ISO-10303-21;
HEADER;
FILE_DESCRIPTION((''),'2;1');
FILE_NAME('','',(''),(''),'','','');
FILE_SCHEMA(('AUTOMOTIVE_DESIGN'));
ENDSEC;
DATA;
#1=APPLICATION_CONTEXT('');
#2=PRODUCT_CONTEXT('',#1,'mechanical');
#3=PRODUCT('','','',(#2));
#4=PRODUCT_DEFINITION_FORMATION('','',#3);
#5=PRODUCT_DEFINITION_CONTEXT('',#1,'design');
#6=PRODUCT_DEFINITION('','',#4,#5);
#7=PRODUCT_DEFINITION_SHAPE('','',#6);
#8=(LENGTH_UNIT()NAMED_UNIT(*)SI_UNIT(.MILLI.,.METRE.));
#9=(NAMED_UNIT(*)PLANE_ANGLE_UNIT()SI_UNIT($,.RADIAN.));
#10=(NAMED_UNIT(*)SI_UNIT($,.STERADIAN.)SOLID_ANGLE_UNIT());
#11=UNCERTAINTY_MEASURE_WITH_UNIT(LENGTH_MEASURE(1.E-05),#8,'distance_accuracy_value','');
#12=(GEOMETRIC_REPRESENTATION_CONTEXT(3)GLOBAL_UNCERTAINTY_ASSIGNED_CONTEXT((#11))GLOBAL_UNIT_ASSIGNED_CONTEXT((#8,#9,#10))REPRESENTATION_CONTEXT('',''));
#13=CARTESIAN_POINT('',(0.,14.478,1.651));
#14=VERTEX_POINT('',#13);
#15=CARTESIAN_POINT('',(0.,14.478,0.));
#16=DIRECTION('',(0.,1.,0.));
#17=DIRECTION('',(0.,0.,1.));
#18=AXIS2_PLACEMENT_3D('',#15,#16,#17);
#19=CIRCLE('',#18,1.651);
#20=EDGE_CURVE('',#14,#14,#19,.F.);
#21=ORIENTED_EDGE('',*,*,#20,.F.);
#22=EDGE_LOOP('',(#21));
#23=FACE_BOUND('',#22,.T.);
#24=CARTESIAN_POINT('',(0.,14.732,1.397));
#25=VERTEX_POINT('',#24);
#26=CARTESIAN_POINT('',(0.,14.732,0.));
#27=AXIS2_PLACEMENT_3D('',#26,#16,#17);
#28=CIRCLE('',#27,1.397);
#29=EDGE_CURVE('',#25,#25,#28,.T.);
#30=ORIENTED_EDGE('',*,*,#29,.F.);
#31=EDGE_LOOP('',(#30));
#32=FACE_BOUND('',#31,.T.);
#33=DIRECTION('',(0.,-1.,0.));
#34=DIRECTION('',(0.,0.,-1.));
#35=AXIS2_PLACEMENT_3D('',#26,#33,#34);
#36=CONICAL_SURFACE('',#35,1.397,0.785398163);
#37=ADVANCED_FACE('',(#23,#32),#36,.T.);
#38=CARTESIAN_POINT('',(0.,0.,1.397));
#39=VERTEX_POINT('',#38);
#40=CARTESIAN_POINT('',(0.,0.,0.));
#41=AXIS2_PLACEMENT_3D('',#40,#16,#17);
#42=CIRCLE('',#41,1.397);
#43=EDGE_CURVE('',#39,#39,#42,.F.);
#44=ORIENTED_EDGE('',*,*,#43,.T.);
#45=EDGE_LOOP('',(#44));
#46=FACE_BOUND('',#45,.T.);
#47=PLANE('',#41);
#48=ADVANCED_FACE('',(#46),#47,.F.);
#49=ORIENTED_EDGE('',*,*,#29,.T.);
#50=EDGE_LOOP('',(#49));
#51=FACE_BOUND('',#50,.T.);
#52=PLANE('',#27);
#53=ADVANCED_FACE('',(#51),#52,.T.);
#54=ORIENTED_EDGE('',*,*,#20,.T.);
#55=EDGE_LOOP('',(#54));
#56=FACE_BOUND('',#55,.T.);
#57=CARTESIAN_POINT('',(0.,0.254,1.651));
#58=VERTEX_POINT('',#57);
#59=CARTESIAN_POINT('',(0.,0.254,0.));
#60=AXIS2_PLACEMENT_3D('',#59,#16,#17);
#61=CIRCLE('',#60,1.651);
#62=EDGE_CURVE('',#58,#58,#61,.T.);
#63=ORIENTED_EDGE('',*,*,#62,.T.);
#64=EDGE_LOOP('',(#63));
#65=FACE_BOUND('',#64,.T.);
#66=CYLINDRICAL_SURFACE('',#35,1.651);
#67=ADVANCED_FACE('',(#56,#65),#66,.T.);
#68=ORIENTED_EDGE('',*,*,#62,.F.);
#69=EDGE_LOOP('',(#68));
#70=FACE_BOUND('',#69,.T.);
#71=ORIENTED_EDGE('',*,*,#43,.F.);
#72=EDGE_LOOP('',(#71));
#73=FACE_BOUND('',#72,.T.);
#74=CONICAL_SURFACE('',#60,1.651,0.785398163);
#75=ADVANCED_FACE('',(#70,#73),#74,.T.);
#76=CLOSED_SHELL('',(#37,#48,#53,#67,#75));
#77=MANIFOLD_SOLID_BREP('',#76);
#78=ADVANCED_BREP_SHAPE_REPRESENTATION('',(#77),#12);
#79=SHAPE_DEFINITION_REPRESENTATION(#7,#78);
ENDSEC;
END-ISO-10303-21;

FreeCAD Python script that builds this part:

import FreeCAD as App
import Part
import Sketcher

V = App.Vector
Q = App.Units.Quantity


def edges_at(feature, points):
    """Names of the edges that pass closest to the given points."""
    edges = feature.Shape.Edges
    near = lambda p: min(range(len(edges)), key=lambda i: edges[i].distToShape(Part.Vertex(*p))[0])
    return sorted({f"Edge{near(p) + 1}" for p in points})

doc = App.newDocument("Part")
body = doc.addObject("PartDesign::Body", "Body")

# Sketch on XZ plane
sketch1 = body.newObject("Sketcher::SketchObject", "Sketch")
sketch1.AttachmentSupport = (doc.getObject("XZ_Plane"), [""])
sketch1.MapMode = "FlatFace"
sketch1.addGeometry(Part.Circle(V(0, 0, 0), V(0, 0, 1), 1.651), False)
sketch1.addConstraint(Sketcher.Constraint("Coincident", 0, 3, -1, 1))
sketch1.addConstraint(Sketcher.Constraint("Diameter", 0, Q("0.13 in")))
pad1 = body.newObject("PartDesign::Pad", "Pad")
pad1.Profile = sketch1
pad1.Length = Q("0.58 in")
pad1.Reversed = True
doc.recompute()

chamfer = body.newObject("PartDesign::Chamfer", "Chamfer")
chamfer.Base = (pad1, edges_at(pad1, [(0, 0, -1.651), (0, 14.732, -1.651)]))
chamfer.Size = Q("0.01 in")

doc.recompute()
